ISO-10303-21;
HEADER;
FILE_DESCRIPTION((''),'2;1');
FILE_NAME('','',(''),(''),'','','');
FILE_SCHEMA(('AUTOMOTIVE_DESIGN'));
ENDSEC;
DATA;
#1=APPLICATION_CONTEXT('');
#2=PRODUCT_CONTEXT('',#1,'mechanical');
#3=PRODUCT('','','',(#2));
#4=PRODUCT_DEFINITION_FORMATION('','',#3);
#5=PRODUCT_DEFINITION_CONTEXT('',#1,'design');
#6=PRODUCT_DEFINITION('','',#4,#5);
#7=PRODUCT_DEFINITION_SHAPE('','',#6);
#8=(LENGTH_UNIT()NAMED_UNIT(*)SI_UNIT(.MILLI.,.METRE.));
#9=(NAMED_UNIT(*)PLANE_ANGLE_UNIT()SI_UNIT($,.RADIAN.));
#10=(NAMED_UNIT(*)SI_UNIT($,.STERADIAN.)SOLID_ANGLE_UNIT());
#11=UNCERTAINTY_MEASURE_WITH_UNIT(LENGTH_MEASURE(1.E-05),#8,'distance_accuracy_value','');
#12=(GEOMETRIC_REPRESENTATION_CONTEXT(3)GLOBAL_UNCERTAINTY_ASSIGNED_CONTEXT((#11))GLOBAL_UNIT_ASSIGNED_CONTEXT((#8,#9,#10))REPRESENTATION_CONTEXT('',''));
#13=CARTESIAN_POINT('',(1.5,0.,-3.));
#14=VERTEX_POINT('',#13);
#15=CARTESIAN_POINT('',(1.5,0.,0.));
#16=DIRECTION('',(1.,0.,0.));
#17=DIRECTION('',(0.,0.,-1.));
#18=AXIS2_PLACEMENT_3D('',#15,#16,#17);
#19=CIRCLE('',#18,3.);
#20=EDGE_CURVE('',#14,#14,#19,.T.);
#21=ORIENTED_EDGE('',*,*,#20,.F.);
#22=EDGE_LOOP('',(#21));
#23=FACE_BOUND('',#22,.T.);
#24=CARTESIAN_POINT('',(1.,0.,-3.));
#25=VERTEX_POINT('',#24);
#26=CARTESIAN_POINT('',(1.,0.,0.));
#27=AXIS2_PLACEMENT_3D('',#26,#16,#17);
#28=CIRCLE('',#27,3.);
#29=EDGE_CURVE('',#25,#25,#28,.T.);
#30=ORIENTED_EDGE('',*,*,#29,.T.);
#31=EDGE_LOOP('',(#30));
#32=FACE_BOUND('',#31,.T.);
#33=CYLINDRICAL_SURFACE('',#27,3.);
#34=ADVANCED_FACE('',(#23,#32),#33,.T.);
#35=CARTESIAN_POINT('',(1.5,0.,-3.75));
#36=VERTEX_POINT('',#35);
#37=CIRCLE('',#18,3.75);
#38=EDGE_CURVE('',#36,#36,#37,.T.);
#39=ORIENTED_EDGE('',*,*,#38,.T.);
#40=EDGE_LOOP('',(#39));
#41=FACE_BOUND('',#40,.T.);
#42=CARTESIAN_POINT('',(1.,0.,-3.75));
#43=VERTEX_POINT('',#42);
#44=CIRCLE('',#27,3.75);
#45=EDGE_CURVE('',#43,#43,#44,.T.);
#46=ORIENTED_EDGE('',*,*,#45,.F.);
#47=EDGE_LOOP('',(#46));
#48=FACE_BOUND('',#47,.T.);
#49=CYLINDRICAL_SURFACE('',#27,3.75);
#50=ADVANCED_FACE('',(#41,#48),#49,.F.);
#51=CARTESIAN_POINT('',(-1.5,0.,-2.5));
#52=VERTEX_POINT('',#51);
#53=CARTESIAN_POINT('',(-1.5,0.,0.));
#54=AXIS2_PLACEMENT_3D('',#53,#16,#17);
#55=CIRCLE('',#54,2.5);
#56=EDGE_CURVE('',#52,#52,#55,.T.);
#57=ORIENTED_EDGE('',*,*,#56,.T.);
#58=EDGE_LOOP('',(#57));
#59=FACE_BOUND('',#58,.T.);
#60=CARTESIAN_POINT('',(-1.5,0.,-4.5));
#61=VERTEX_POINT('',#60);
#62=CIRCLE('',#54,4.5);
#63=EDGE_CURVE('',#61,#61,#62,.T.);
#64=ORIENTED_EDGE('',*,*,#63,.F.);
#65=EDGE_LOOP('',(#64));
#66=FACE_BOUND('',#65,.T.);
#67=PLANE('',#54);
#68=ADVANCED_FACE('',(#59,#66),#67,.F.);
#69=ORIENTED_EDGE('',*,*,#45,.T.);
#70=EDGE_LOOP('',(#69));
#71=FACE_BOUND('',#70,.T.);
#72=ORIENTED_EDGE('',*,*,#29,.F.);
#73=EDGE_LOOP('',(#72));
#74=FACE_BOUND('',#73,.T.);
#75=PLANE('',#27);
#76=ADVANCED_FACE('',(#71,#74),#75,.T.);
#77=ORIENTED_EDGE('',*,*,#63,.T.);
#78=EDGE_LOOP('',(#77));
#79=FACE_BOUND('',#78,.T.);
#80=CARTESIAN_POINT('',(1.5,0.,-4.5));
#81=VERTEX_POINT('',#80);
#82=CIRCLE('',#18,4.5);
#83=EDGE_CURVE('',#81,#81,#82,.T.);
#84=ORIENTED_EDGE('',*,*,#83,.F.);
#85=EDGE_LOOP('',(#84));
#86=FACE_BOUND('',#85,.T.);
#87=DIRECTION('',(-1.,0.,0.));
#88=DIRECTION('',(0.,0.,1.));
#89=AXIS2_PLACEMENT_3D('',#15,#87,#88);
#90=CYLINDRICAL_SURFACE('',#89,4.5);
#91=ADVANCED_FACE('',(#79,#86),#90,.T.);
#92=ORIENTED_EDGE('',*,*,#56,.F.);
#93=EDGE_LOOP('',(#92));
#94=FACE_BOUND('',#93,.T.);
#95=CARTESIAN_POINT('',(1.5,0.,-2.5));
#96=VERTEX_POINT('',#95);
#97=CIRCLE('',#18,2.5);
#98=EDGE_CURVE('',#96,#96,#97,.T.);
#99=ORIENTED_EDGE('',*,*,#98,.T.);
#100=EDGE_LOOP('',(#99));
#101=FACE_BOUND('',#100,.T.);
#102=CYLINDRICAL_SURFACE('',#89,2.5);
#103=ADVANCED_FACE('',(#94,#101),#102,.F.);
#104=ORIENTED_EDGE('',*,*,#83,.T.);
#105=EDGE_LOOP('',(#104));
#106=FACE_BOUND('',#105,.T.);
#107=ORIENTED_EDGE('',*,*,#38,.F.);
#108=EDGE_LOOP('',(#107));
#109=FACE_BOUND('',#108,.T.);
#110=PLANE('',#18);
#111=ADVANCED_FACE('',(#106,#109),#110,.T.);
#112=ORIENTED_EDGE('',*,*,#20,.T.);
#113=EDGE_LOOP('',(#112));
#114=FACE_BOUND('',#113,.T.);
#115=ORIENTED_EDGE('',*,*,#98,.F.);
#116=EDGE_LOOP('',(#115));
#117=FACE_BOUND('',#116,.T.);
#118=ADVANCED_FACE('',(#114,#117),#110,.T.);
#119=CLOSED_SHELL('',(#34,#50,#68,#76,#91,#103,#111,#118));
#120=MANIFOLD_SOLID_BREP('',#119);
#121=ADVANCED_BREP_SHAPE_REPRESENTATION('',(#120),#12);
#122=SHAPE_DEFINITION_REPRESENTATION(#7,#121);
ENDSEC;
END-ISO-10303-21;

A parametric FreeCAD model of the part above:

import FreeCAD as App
import Part
import Sketcher
Q = App.Units.Quantity

doc = App.newDocument("Part")
body = doc.addObject("PartDesign::Body", "Body")

# Sketch on YZ plane
sketch1 = body.newObject("Sketcher::SketchObject", "Sketch")
sketch1.AttachmentSupport = (doc.getObject("YZ_Plane"), [""])
sketch1.MapMode = "FlatFace"
sketch1.addGeometry([
    Part.Circle(App.Vector(0, 0, 0), App.Vector(0, 0, 1), 4.5),
    Part.Circle(App.Vector(0, 0, 0), App.Vector(0, 0, 1), 2.5),
], False)
sketch1.addConstraint([
    Sketcher.Constraint("Coincident", 0, 3, -1, 1),
    Sketcher.Constraint("Coincident", 1, 3, -1, 1),
    Sketcher.Constraint("Diameter", 0, Q("9 mm")),
    Sketcher.Constraint("Diameter", 1, Q("5 mm")),
])
pad1 = body.newObject("PartDesign::Pad", "Pad")
pad1.Profile = sketch1
pad1.Length = 3
pad1.Midplane = True

# Sketch on YZ plane
sketch2 = body.newObject("Sketcher::SketchObject", "Sketch001")
sketch2.AttachmentSupport = (doc.getObject("YZ_Plane"), [""])
sketch2.MapMode = "FlatFace"
sketch2.AttachmentOffset = App.Placement(App.Vector(0, 0, 1.5), App.Rotation())
sketch2.addGeometry([
    Part.Circle(App.Vector(0, 0, 0), App.Vector(0, 0, 1), 3.8),
    Part.Circle(App.Vector(0, 0, 0), App.Vector(0, 0, 1), 3),
], False)
sketch2.addConstraint([
    Sketcher.Constraint("Coincident", 0, 3, -1, 1),
    Sketcher.Constraint("Coincident", 1, 3, -1, 1),
    Sketcher.Constraint("Diameter", 1, Q("6 mm")),
    Sketcher.Constraint("Diameter", 0, Q("7.5 mm")),
])
pocket1 = body.newObject("PartDesign::Pocket", "Pocket")
pocket1.Profile = sketch2
pocket1.Length = 0.5

doc.recompute()
